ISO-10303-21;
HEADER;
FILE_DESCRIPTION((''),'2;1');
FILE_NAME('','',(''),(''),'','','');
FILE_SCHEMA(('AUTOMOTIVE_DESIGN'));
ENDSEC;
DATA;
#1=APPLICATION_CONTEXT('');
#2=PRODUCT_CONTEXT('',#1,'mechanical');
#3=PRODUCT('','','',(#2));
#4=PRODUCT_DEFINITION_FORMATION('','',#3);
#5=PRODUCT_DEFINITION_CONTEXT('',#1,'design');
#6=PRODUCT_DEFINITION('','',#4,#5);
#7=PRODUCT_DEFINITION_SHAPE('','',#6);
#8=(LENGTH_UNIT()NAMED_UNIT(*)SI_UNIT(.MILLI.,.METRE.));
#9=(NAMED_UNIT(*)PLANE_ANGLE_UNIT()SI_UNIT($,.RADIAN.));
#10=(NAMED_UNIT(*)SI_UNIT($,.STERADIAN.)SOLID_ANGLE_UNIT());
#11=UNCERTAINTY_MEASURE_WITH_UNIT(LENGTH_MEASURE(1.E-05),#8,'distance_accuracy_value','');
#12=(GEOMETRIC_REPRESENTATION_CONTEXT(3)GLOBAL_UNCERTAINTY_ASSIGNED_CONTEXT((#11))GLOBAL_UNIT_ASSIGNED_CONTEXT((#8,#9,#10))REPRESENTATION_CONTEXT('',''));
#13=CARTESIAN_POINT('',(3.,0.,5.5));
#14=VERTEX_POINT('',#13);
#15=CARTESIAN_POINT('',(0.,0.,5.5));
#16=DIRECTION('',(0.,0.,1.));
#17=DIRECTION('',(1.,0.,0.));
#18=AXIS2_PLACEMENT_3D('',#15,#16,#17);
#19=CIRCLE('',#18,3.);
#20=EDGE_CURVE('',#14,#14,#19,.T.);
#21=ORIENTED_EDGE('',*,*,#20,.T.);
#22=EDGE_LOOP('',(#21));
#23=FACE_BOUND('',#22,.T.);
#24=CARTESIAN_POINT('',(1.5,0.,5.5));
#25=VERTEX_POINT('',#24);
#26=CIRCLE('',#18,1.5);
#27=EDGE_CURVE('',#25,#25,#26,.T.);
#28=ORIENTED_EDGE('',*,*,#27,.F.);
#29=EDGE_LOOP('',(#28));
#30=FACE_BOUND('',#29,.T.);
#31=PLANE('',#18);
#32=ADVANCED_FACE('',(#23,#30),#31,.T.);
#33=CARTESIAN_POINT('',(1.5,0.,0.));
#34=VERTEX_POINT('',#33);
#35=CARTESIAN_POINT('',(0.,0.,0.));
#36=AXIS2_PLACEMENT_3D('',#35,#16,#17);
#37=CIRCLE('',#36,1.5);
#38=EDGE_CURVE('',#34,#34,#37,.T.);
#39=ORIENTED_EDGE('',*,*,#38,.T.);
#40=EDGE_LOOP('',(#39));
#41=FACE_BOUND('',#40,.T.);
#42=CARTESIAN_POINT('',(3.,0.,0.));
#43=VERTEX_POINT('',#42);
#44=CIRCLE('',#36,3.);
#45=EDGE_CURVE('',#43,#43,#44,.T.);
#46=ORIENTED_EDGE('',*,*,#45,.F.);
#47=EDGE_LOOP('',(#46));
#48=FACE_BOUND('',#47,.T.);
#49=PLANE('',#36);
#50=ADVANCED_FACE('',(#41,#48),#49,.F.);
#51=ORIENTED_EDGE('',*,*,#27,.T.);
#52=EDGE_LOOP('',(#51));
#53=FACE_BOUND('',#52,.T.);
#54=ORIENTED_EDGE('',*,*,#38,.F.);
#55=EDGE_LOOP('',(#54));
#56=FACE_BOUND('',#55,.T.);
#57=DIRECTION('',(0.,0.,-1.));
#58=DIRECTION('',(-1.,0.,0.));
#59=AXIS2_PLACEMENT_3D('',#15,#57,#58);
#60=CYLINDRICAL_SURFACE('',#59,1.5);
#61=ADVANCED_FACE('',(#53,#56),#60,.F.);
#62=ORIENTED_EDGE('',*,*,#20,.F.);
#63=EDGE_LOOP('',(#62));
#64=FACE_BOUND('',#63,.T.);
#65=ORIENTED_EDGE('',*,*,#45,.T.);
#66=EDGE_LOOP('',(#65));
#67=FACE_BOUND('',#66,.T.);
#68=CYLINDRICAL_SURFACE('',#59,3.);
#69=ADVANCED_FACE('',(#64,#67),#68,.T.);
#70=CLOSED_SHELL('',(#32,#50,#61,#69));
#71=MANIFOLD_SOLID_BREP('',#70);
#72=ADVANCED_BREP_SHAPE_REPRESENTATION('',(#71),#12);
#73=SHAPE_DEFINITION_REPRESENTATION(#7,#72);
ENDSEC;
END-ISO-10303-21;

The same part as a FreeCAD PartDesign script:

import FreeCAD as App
import Part
import Sketcher

V = App.Vector

doc = App.newDocument("Part")
params = doc.addObject("Spreadsheet::Sheet", "Params")
for row, (alias, value) in enumerate([
    ("sketch1_diameter", "6 mm"),
    ("sketch1_diameter2", "3 mm"),
    ("pad1_length", "5.5 mm"),
], start=1):
    params.set(f"A{row}", alias)
    params.set(f"B{row}", "=" + value)
    params.setAlias(f"B{row}", alias)

body = doc.addObject("PartDesign::Body", "Body")

# Sketch on XY plane
sketch1 = doc.addObject("Sketcher::SketchObject", "Sketch")
body.addObject(sketch1)
sketch1.AttachmentSupport = (doc.XY_Plane, [""])
sketch1.MapMode = "FlatFace"
sketch1.addGeometry(Part.Circle(V(0, 0, 0), V(0, 0, 1), 3), False)
sketch1.addGeometry(Part.Circle(V(0, 0, 0), V(0, 0, 1), 1.5), False)
sketch1.addConstraint(Sketcher.Constraint("Coincident", 0, 3, -1, 1))
sketch1.addConstraint(Sketcher.Constraint("Coincident", 1, 3, -1, 1))
sketch1.addConstraint(Sketcher.Constraint("Diameter", 0, 6.0))
sketch1.addConstraint(Sketcher.Constraint("Diameter", 1, 3.0))
sketch1.setExpression("Constraints[2]", "Params.sketch1_diameter")
sketch1.setExpression("Constraints[3]", "Params.sketch1_diameter2")
pad1 = doc.addObject("PartDesign::Pad", "Pad")
body.addObject(pad1)
pad1.Profile = sketch1
pad1.setExpression("Length", "Params.pad1_length")

doc.recompute()
